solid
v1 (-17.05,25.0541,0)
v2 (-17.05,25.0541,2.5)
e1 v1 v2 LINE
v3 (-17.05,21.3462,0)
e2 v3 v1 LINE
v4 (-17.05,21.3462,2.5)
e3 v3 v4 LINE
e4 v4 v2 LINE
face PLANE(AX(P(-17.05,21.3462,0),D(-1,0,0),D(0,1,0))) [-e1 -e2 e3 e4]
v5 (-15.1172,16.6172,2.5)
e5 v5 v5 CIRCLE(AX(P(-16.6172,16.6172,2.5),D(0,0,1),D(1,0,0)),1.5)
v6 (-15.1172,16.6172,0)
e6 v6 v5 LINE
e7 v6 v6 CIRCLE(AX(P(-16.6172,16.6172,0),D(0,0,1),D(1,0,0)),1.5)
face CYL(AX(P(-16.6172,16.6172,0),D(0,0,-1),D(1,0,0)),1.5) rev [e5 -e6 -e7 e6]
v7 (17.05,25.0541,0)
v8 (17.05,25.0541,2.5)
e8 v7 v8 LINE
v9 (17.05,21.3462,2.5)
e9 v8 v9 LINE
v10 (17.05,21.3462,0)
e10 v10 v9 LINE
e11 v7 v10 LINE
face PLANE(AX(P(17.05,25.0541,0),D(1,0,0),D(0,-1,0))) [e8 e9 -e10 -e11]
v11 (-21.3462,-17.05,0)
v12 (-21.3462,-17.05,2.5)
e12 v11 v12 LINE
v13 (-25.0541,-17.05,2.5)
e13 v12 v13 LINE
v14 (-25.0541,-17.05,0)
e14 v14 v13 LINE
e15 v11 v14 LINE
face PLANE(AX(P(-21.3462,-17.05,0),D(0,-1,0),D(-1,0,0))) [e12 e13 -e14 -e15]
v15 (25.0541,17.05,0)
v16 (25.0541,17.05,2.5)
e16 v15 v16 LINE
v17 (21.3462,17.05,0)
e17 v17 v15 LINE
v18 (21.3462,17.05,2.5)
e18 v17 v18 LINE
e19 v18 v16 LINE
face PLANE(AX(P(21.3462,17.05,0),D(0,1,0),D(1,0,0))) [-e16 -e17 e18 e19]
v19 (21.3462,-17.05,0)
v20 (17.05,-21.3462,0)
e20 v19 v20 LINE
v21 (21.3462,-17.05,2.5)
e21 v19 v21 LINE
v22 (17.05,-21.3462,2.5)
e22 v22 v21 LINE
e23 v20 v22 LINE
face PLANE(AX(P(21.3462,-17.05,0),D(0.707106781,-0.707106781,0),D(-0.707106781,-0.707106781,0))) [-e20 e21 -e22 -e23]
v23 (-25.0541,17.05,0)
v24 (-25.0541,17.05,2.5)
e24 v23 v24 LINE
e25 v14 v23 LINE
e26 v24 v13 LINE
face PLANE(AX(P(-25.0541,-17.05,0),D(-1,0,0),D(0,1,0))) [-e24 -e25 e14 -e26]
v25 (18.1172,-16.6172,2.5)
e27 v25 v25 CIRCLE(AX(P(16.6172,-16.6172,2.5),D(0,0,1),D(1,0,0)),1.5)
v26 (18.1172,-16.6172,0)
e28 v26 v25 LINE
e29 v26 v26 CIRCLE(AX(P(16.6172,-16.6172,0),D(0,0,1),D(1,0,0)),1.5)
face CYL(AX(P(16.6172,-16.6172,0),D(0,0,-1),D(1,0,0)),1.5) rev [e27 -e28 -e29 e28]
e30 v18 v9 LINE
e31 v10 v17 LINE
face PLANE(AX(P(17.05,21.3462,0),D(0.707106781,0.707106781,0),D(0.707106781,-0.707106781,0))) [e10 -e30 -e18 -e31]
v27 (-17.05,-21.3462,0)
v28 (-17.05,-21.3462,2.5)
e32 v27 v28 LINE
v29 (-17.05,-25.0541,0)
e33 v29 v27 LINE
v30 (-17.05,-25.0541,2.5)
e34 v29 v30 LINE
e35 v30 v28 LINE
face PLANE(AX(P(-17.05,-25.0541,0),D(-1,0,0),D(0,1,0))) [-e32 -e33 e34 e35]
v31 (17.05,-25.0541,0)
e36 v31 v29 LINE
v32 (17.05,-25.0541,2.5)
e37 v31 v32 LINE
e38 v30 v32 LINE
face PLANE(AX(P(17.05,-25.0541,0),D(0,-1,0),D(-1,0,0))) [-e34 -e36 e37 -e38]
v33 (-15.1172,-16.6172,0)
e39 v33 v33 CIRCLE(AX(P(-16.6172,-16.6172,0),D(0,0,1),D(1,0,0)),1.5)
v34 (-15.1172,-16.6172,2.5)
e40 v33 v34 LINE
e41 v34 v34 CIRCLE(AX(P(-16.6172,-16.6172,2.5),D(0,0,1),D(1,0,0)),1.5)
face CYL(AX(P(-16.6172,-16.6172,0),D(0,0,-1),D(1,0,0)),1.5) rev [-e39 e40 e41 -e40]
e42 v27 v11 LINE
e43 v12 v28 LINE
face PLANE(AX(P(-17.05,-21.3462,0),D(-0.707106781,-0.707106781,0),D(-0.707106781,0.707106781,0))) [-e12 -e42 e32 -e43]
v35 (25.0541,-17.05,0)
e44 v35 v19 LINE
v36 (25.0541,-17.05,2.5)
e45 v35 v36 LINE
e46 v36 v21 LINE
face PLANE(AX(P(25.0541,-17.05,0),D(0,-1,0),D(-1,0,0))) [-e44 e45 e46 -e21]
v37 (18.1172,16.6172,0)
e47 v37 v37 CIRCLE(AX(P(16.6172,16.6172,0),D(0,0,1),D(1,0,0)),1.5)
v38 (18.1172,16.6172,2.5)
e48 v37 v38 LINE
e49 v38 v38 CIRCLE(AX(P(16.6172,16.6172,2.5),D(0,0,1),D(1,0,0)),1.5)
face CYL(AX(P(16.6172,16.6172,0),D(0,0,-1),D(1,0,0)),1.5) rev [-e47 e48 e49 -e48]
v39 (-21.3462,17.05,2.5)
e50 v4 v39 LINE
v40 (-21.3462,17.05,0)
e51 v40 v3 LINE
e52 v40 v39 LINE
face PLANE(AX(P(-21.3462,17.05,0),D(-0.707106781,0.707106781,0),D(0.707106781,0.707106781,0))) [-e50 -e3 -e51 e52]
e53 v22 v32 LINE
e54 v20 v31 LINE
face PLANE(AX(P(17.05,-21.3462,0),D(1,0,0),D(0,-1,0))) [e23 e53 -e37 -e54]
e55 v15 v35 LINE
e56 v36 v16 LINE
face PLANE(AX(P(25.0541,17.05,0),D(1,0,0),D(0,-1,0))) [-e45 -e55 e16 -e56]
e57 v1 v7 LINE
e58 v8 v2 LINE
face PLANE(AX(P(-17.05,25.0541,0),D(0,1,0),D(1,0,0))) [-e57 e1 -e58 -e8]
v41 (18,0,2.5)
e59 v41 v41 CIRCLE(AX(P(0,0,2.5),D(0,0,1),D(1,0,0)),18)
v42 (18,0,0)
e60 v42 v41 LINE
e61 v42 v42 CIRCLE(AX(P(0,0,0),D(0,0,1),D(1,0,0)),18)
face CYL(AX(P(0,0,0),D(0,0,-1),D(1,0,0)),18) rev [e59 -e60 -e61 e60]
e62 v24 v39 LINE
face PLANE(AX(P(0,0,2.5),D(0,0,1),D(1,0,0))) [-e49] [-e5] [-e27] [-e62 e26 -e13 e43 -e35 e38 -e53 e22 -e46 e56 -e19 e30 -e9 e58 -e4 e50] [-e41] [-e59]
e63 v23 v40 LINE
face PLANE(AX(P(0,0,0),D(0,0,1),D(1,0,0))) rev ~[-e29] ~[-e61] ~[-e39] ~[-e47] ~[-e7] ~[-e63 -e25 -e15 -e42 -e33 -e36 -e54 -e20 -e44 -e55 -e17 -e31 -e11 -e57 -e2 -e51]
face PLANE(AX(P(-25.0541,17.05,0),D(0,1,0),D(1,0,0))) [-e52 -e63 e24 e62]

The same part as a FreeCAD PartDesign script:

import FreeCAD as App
import Part
import Sketcher
from FreeCAD import Vector
Q = App.Units.Quantity


def add_polygon(sketch, points):
    """Adds a closed chain of lines whose ends are joined by coincident constraints."""
    first, n = sketch.GeometryCount, len(points)
    for a, b in zip(points, points[1:] + points[:1]):
        sketch.addGeometry(Part.LineSegment(App.Vector(*a, 0), App.Vector(*b, 0)), False)
    for i in range(n):
        sketch.addConstraint(Sketcher.Constraint("Coincident", first + i, 2, first + (i + 1) % n, 1))

doc = App.newDocument("Part")
body = doc.addObject("PartDesign::Body", "Body")

# Sketch on XY plane
sketch1 = doc.addObject("Sketcher::SketchObject", "Sketch")
body.addObject(sketch1)
sketch1.AttachmentSupport = (doc.XY_Plane, [""])
sketch1.MapMode = "FlatFace"
add_polygon(sketch1, [(-17.1, 25.1), (-17.1, 21.3), (-21.3, 17.1), (-25.1, 17.1), (-25.1, -17.1), (-21.3, -17.1), (-17.1, -21.3), (-17.1, -25.1), (17.1, -25.1), (17.1, -21.3), (21.3, -17.1), (25.1, -17.1), (25.1, 17.1), (21.3, 17.1), (17.1, 21.3), (17.1, 25.1)])  # lines 0-15
sketch1.addGeometry(Part.Circle(Vector(-16.6, -16.6, 0), Vector(0, 0, 1), 1.5), False)  # 16
sketch1.addGeometry(Part.Circle(Vector(16.6, -16.6, 0), Vector(0, 0, 1), 1.5), False)  # 17
sketch1.addGeometry(Part.Circle(Vector(-16.6, 16.6, 0), Vector(0, 0, 1), 1.5), False)  # 18
sketch1.addGeometry(Part.Circle(Vector(0, 0, 0), Vector(0, 0, 1), 18), False)  # 19
sketch1.addGeometry(Part.Circle(Vector(16.6, 16.6, 0), Vector(0, 0, 1), 1.5), False)  # 20
sketch1.addConstraint(Sketcher.Constraint("Vertical", 0))
sketch1.addConstraint(Sketcher.Constraint("Horizontal", 2))
sketch1.addConstraint(Sketcher.Constraint("Vertical", 3))
sketch1.addConstraint(Sketcher.Constraint("Horizontal", 4))
sketch1.addConstraint(Sketcher.Constraint("Vertical", 6))
sketch1.addConstraint(Sketcher.Constraint("Horizontal", 7))
sketch1.addConstraint(Sketcher.Constraint("Vertical", 8))
sketch1.addConstraint(Sketcher.Constraint("Horizontal", 10))
sketch1.addConstraint(Sketcher.Constraint("Vertical", 11))
sketch1.addConstraint(Sketcher.Constraint("Horizontal", 12))
sketch1.addConstraint(Sketcher.Constraint("Vertical", 14))
sketch1.addConstraint(Sketcher.Constraint("Horizontal", 15))
sketch1.addConstraint(Sketcher.Constraint("Coincident", 19, 3, -1, 1))
sketch1.addConstraint(Sketcher.Constraint("Equal", 16, 17))
sketch1.addConstraint(Sketcher.Constraint("Equal", 17, 18))
sketch1.addConstraint(Sketcher.Constraint("Equal", 18, 20))
sketch1.addConstraint(Sketcher.Constraint("Symmetric", 17, 3, 18, 3, -1, 1))
sketch1.addConstraint(Sketcher.Constraint("Symmetric", 16, 3, 20, 3, -1, 1))
sketch1.addConstraint(Sketcher.Constraint("Symmetric", 0, 2, 8, 2, -1, 1))
sketch1.addConstraint(Sketcher.Constraint("Symmetric", 1, 2, 9, 2, -1, 1))
sketch1.addConstraint(Sketcher.Constraint("Symmetric", 3, 2, 11, 2, -1, 1))
sketch1.addConstraint(Sketcher.Constraint("Symmetric", 5, 2, 13, 2, -1, 1))
sketch1.addConstraint(Sketcher.Constraint("Symmetric", 16, 3, 17, 3, -2))
sketch1.addConstraint(Sketcher.Constraint("Symmetric", 5, 2, 8, 2, -2))
sketch1.addConstraint(Sketcher.Constraint("Symmetric", 4, 2, 9, 2, -2))
sketch1.addConstraint(Sketcher.Constraint("Perpendicular", 1, 5))
sketch1.addConstraint(Sketcher.Constraint("Perpendicular", 9, 13))
sketch1.addConstraint(Sketcher.Constraint("Equal", 12, 0))
sketch1.addConstraint(Sketcher.Constraint("Equal", 15, 3))
sketch1.addConstraint(Sketcher.Constraint("Equal", 0, 6))
sketch1.addConstraint(Sketcher.Constraint("Diameter", 16, Q("3 mm")))
sketch1.addConstraint(Sketcher.Constraint("Diameter", 19, Q("36 mm")))
sketch1.addConstraint(Sketcher.Constraint("DistanceX", 7, 1, 7, 2, Q("34.1 mm")))
sketch1.addConstraint(Sketcher.Constraint("DistanceX", 2, 2, 2, 1, Q("3.708 mm")))
sketch1.addConstraint(Sketcher.Constraint("DistanceX", 2, 2, -1, 1, Q("25.054 mm")))
sketch1.addConstraint(Sketcher.Constraint("DistanceY", 18, 3, 0, 2, Q("4.729 mm")))
sketch1.addConstraint(Sketcher.Constraint("DistanceX", 1, 2, 18, 3, Q("4.729 mm")))
pad1 = doc.addObject("PartDesign::Pad", "Pad")
body.addObject(pad1)
pad1.Profile = sketch1
pad1.Length = 2.5

doc.recompute()
